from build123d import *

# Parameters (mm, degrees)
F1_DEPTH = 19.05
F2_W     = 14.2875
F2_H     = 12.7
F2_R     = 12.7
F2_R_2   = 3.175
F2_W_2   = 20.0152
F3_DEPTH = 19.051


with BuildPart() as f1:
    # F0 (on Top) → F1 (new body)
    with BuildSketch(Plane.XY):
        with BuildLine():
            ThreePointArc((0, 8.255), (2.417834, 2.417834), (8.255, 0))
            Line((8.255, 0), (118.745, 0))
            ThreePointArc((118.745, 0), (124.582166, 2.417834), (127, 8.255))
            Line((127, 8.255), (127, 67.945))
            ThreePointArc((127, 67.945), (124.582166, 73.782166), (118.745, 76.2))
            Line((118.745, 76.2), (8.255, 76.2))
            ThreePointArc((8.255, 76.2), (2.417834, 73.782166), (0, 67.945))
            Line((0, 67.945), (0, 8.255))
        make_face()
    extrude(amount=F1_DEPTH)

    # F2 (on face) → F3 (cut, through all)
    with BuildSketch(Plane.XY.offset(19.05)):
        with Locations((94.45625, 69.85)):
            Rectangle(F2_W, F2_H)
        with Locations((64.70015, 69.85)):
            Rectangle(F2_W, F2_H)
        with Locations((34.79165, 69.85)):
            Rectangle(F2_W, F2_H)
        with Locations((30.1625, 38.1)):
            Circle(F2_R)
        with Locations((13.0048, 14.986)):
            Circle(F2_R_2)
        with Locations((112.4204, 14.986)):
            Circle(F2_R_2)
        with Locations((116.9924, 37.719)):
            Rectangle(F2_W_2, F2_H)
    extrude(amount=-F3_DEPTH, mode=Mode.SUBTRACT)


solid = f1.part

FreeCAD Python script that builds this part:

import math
import FreeCAD as App
import Part
import Sketcher
from FreeCAD import Vector
Q = App.Units.Quantity


def add_polygon(sketch, points):
    """Adds a closed chain of lines whose ends are joined by coincident constraints."""
    first, n = sketch.GeometryCount, len(points)
    for a, b in zip(points, points[1:] + points[:1]):
        sketch.addGeometry(Part.LineSegment(App.Vector(*a, 0), App.Vector(*b, 0)), False)
    for i in range(n):
        sketch.addConstraint(Sketcher.Constraint("Coincident", first + i, 2, first + (i + 1) % n, 1))

doc = App.newDocument("Part")
body = doc.addObject("PartDesign::Body", "Body")

# Sketch on XY plane
sketch1 = body.newObject("Sketcher::SketchObject", "Sketch")
sketch1.AttachmentSupport = (doc.getObject("XY_Plane"), [""])
sketch1.MapMode = "FlatFace"
sketch1.addGeometry([
    Part.ArcOfCircle(Part.Circle(Vector(8, 8, 0), Vector(0, 0, 1), 8), math.radians(-180), math.radians(-90)),  # 0
    Part.LineSegment(Vector(8, 0, 0), Vector(119, 0, 0)),  # 1
    Part.ArcOfCircle(Part.Circle(Vector(119, 8, 0), Vector(0, 0, 1), 8), math.radians(-90), math.radians(0)),  # 2
    Part.LineSegment(Vector(127, 8, 0), Vector(127, 68, 0)),  # 3
    Part.ArcOfCircle(Part.Circle(Vector(119, 68, 0), Vector(0, 0, 1), 8), math.radians(0), math.radians(90)),  # 4
    Part.LineSegment(Vector(119, 76, 0), Vector(8, 76, 0)),  # 5
    Part.ArcOfCircle(Part.Circle(Vector(8, 68, 0), Vector(0, 0, 1), 8), math.radians(90), math.radians(180)),  # 6
    Part.LineSegment(Vector(0, 68, 0), Vector(0, 8, 0)),  # 7
], False)
sketch1.addConstraint([
    Sketcher.Constraint("Tangent", 0, 2, 1, 1),
    Sketcher.Constraint("Tangent", 1, 2, 2, 1),
    Sketcher.Constraint("Tangent", 2, 2, 3, 1),
    Sketcher.Constraint("Tangent", 3, 2, 4, 1),
    Sketcher.Constraint("Tangent", 4, 2, 5, 1),
    Sketcher.Constraint("Tangent", 5, 2, 6, 1),
    Sketcher.Constraint("Tangent", 6, 2, 7, 1),
    Sketcher.Constraint("Tangent", 7, 2, 0, 1),
    Sketcher.Constraint("Horizontal", 1),
    Sketcher.Constraint("Vertical", 3),
    Sketcher.Constraint("Horizontal", 5),
    Sketcher.Constraint("Vertical", 7),
    Sketcher.Constraint("Equal", 0, 2),
    Sketcher.Constraint("Equal", 2, 4),
    Sketcher.Constraint("Equal", 4, 6),
    Sketcher.Constraint("PointOnObject", 0, 2, -1),
    Sketcher.Constraint("PointOnObject", 6, 2, -2),
    Sketcher.Constraint("DistanceX", -1, 1, 2, 2, Q("5 in")),
    Sketcher.Constraint("DistanceY", -1, 1, 4, 2, Q("3 in")),
    Sketcher.Constraint("Radius", 0, Q("0.3250001 in")),
])
pad1 = body.newObject("PartDesign::Pad", "Pad")
pad1.Profile = sketch1
pad1.Length = Q("0.75 in")

# Sketch on XY plane
sketch2 = body.newObject("Sketcher::SketchObject", "Sketch001")
sketch2.AttachmentSupport = (doc.getObject("XY_Plane"), [""])
sketch2.MapMode = "FlatFace"
sketch2.AttachmentOffset = App.Placement(Vector(0, 0, 0.75 * 25.4), App.Rotation())
add_polygon(sketch2, [(87.3, 76.2), (87.3, 63.5), (101.6, 63.5), (101.6, 76.2)])  # lines 0-3
add_polygon(sketch2, [(57.6, 76.2), (57.6, 63.5), (71.8, 63.5), (71.8, 76.2)])  # lines 4-7
add_polygon(sketch2, [(27.6, 76.2), (27.6, 63.5), (41.9, 63.5), (41.9, 76.2)])  # lines 8-11
sketch2.addGeometry(Part.Circle(Vector(30.2, 38.1, 0), Vector(0, 0, 1), 12.7), False)  # 12
sketch2.addGeometry(Part.Circle(Vector(13, 15, 0), Vector(0, 0, 1), 3.2), False)  # 13
sketch2.addGeometry(Part.Circle(Vector(112.4, 15, 0), Vector(0, 0, 1), 3.2), False)  # 14
add_polygon(sketch2, [(107, 44.1), (107, 31.4), (127, 31.4), (127, 44.1)])  # lines 15-18
sketch2.addConstraint([
    Sketcher.Constraint("Vertical", 0),
    Sketcher.Constraint("Horizontal", 1),
    Sketcher.Constraint("Vertical", 2),
    Sketcher.Constraint("Horizontal", 3),
    Sketcher.Constraint("Vertical", 4),
    Sketcher.Constraint("Horizontal", 5),
    Sketcher.Constraint("Vertical", 6),
    Sketcher.Constraint("Horizontal", 7),
    Sketcher.Constraint("Vertical", 8),
    Sketcher.Constraint("Horizontal", 9),
    Sketcher.Constraint("Vertical", 10),
    Sketcher.Constraint("Horizontal", 11),
    Sketcher.Constraint("Vertical", 15),
    Sketcher.Constraint("Horizontal", 16),
    Sketcher.Constraint("Vertical", 17),
    Sketcher.Constraint("Horizontal", 18),
    Sketcher.Constraint("Equal", 13, 14),
    Sketcher.Constraint("Horizontal", 13, 3, 14, 3),
    Sketcher.Constraint("Horizontal", 1, 2, 4, 2),
    Sketcher.Constraint("Horizontal", 3, 2, 6, 2),
    Sketcher.Constraint("Horizontal", 5, 2, 8, 2),
    Sketcher.Constraint("Horizontal", 7, 2, 10, 2),
    Sketcher.Constraint("Equal", 3, 5),
    Sketcher.Constraint("Equal", 7, 9),
    Sketcher.Constraint("Equal", 10, 15),
    Sketcher.Constraint("Diameter", 12, Q("1 in")),
    Sketcher.Constraint("Diameter", 13, Q("0.25 in")),
    Sketcher.Constraint("DistanceY", 0, 2, 0, 1, Q("0.5 in")),
    Sketcher.Constraint("DistanceX", -1, 1, 1, 2, Q("4 in")),
    Sketcher.Constraint("DistanceY", -1, 1, 2, 2, Q("3 in")),
    Sketcher.Constraint("DistanceX", -1, 1, 16, 2, Q("5 in")),
    Sketcher.Constraint("DistanceY", 12, 3, 0, 2, Q("1 in")),
    Sketcher.Constraint("DistanceX", 1, 1, 1, 2, Q("0.5625 in")),
    Sketcher.Constraint("DistanceX", 16, 1, 16, 2, Q("0.788 in")),
    Sketcher.Constraint("DistanceY", -1, 1, 13, 3, Q("0.59 in")),
    Sketcher.Constraint("DistanceX", 12, 3, 0, 2, Q("2.25 in")),
    Sketcher.Constraint("DistanceX", 8, 2, 5, 2, Q("1.74 in")),
    Sketcher.Constraint("DistanceX", -1, 1, 13, 3, Q("0.512 in")),
    Sketcher.Constraint("DistanceX", -1, 1, 14, 3, Q("4.426 in")),
    Sketcher.Constraint("DistanceX", -1, 1, 4, 2, Q("2.266 in")),
    Sketcher.Constraint("DistanceY", -1, 1, 15, 2, Q("1.235 in")),
])
pocket1 = body.newObject("PartDesign::Pocket", "Pocket")
pocket1.Profile = sketch2
pocket1.Type = "ThroughAll"

doc.recompute()
